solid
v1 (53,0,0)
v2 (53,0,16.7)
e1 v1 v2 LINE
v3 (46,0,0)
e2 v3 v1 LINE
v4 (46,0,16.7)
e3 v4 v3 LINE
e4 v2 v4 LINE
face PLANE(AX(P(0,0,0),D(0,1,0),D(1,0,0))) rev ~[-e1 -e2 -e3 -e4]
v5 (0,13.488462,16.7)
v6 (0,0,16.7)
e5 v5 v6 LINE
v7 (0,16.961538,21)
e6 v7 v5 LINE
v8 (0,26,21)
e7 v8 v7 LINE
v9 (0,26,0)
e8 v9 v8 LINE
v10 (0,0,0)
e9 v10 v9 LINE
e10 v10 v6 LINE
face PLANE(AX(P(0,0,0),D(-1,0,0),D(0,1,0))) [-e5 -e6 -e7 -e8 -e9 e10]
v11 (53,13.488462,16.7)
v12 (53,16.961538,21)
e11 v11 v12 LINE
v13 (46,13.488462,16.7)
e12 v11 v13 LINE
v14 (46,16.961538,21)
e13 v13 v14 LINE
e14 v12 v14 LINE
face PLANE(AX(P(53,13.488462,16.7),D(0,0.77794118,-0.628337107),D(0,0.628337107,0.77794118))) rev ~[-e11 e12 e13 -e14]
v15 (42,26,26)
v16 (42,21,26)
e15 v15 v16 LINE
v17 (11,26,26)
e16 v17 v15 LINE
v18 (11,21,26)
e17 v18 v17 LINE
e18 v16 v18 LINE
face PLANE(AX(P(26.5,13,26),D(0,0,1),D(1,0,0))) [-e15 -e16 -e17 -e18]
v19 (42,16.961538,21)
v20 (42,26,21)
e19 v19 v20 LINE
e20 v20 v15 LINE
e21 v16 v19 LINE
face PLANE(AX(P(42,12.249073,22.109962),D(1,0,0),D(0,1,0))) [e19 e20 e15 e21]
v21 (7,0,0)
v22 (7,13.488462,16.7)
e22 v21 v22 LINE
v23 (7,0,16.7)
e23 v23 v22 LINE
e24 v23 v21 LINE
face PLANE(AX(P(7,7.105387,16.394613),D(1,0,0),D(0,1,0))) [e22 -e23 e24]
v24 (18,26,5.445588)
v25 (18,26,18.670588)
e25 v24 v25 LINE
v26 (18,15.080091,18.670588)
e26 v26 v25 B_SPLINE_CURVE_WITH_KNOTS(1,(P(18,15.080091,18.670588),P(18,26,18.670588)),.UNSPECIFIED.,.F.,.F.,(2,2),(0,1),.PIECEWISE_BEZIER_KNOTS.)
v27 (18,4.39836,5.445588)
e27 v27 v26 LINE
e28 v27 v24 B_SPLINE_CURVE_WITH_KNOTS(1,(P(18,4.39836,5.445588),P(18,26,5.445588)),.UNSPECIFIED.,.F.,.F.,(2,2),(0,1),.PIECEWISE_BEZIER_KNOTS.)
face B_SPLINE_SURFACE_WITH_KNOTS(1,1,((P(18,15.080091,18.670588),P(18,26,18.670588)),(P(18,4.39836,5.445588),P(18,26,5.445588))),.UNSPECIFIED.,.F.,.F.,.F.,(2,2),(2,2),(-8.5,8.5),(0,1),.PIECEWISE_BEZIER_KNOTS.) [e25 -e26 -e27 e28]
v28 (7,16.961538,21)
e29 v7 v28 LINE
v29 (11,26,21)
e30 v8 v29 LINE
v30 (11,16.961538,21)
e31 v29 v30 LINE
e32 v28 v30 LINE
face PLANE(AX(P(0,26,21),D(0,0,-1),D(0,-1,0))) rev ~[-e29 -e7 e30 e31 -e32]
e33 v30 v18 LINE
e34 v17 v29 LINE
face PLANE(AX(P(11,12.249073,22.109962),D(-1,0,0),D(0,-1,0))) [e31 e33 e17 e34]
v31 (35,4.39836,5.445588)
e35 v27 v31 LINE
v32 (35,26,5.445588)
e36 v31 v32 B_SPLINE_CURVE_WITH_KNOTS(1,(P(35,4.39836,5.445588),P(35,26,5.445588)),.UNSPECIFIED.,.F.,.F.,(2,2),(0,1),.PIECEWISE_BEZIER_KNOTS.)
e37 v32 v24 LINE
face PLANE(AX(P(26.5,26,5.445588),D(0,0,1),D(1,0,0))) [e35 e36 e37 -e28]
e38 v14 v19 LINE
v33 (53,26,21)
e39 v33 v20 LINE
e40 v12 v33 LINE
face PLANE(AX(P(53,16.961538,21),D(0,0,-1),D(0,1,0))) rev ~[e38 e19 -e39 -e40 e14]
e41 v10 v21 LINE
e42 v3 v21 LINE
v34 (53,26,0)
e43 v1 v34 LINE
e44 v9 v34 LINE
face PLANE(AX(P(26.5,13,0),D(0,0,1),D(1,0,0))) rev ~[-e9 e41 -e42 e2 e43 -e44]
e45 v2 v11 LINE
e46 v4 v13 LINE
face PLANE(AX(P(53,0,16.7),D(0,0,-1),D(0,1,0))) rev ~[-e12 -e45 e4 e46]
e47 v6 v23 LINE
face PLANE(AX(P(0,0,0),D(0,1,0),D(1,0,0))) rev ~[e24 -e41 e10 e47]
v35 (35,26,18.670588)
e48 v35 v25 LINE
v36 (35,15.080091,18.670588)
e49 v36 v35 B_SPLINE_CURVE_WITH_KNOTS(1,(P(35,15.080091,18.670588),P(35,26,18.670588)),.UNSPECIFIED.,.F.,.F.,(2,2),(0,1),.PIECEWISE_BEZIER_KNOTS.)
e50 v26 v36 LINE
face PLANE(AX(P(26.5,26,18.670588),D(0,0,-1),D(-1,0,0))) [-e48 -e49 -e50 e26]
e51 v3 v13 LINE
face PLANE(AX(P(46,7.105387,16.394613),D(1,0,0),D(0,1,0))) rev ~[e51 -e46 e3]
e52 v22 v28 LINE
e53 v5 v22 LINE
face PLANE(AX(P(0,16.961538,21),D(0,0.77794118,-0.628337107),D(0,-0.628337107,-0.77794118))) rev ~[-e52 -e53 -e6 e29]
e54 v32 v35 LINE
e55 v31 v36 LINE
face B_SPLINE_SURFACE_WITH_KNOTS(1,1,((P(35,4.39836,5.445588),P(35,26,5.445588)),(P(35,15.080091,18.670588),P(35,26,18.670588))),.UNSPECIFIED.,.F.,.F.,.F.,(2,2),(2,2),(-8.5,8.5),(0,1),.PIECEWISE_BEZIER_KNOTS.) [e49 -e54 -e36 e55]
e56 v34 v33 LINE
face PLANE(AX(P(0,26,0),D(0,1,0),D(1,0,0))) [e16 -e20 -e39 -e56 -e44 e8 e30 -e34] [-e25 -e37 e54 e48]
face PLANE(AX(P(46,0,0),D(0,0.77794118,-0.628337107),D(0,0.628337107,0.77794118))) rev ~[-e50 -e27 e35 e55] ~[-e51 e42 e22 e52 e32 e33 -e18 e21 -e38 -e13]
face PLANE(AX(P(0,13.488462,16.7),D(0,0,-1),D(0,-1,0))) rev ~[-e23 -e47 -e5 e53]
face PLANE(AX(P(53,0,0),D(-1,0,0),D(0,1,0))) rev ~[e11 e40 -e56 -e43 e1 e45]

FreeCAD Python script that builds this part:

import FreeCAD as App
import Part
import Sketcher

doc = App.newDocument("Part")
params = doc.addObject("Spreadsheet::Sheet", "Params")
for row, (alias, value) in enumerate([
    ("sketch1_width", "53 mm"),
    ("sketch1_height", "26 mm"),
    ("pad1_length", "26 mm"),
    ("sketch2_width", "21 mm"),
    ("sketch2_height", "26 mm"),
    ("pocket1_length", "39 mm"),
    ("sketch3_width", "26 mm"),
    ("sketch3_height", "5 mm"),
    ("sketch3_height2", "9.3 mm"),
    ("pocket2_length", "11 mm"),
    ("sketch4_width", "26 mm"),
    ("sketch4_height", "5 mm"),
    ("sketch4_height2", "9.3 mm"),
    ("pocket3_length", "11 mm"),
    ("sketch5_width", "17 mm"),
    ("sketch6_width", "17 mm"),
], start=1):
    params.set(f"A{row}", alias)
    params.set(f"B{row}", "=" + value)
    params.setAlias(f"B{row}", alias)

body = doc.addObject("PartDesign::Body", "Body")

sketch1 = body.newObject("Sketcher::SketchObject", "Sketch")
sketch1.AttachmentSupport = (doc.getObject("XY_Plane"), [""])
sketch1.MapMode = "FlatFace"
sketch1.addGeometry([
    Part.LineSegment(App.Vector(0, 26, 0), App.Vector(0, 0, 0)),
    Part.LineSegment(App.Vector(0, 0, 0), App.Vector(53, 0, 0)),
    Part.LineSegment(App.Vector(53, 0, 0), App.Vector(53, 26, 0)),
    Part.LineSegment(App.Vector(53, 26, 0), App.Vector(0, 26, 0)),
], False)
sketch1.addConstraint([
    Sketcher.Constraint("Coincident", 0, 2, 1, 1),
    Sketcher.Constraint("Coincident", 1, 2, 2, 1),
    Sketcher.Constraint("Coincident", 2, 2, 3, 1),
    Sketcher.Constraint("Coincident", 3, 2, 0, 1),
    Sketcher.Constraint("Vertical", 0),
    Sketcher.Constraint("Horizontal", 1),
    Sketcher.Constraint("Vertical", 2),
    Sketcher.Constraint("Horizontal", 3),
    Sketcher.Constraint("Coincident", 0, 2, -1, 1),
    Sketcher.Constraint("DistanceX", 1, 1, 1, 2, 53.0),
    Sketcher.Constraint("DistanceY", 0, 2, 0, 1, 26.0),
])
sketch1.setExpression("Constraints[9]", "Params.sketch1_width")
sketch1.setExpression("Constraints[10]", "Params.sketch1_height")
pad1 = body.newObject("PartDesign::Pad", "Pad")
pad1.Profile = sketch1
pad1.setExpression("Length", "Params.pad1_length")

sketch2 = body.newObject("Sketcher::SketchObject", "Sketch001")
sketch2.AttachmentSupport = (doc.getObject("YZ_Plane"), [""])
sketch2.MapMode = "FlatFace"
sketch2.AttachmentOffset = App.Placement(App.Vector(0, 0, 46), App.Rotation())
sketch2.addGeometry([
    Part.LineSegment(App.Vector(21, 26, 0), App.Vector(0, 26, 0)),
    Part.LineSegment(App.Vector(0, 26, 0), App.Vector(0, 0, 0)),
    Part.LineSegment(App.Vector(0, 0, 0), App.Vector(21, 26, 0)),
], False)
sketch2.addConstraint([
    Sketcher.Constraint("Coincident", 0, 2, 1, 1),
    Sketcher.Constraint("Coincident", 1, 2, 2, 1),
    Sketcher.Constraint("Coincident", 2, 2, 0, 1),
    Sketcher.Constraint("Horizontal", 0),
    Sketcher.Constraint("Vertical", 1),
    Sketcher.Constraint("Coincident", 1, 2, -1, 1),
    Sketcher.Constraint("DistanceX", 0, 2, 0, 1, 21.0),
    Sketcher.Constraint("DistanceY", 1, 2, 1, 1, 26.0),
])
sketch2.setExpression("Constraints[6]", "Params.sketch2_width")
sketch2.setExpression("Constraints[7]", "Params.sketch2_height")
pocket1 = body.newObject("PartDesign::Pocket", "Pocket")
pocket1.Profile = sketch2
pocket1.setExpression("Length", "Params.pocket1_length")

sketch3 = body.newObject("Sketcher::SketchObject", "Sketch002")
sketch3.AttachmentSupport = (doc.getObject("YZ_Plane"), [""])
sketch3.MapMode = "FlatFace"
sketch3.AttachmentOffset = App.Placement(App.Vector(0, 0, 53), App.Rotation())
sketch3.addGeometry([
    Part.LineSegment(App.Vector(26, 26, 0), App.Vector(0, 26, 0)),
    Part.LineSegment(App.Vector(0, 26, 0), App.Vector(0, 17, 0)),
    Part.LineSegment(App.Vector(0, 17, 0), App.Vector(13, 17, 0)),
    Part.LineSegment(App.Vector(13, 17, 0), App.Vector(17, 21, 0)),
    Part.LineSegment(App.Vector(17, 21, 0), App.Vector(26, 21, 0)),
    Part.LineSegment(App.Vector(26, 21, 0), App.Vector(26, 26, 0)),
], False)
sketch3.addConstraint([
    Sketcher.Constraint("Coincident", 0, 2, 1, 1),
    Sketcher.Constraint("Coincident", 1, 2, 2, 1),
    Sketcher.Constraint("Coincident", 2, 2, 3, 1),
    Sketcher.Constraint("Coincident", 3, 2, 4, 1),
    Sketcher.Constraint("Coincident", 4, 2, 5, 1),
    Sketcher.Constraint("Coincident", 5, 2, 0, 1),
    Sketcher.Constraint("Horizontal", 0),
    Sketcher.Constraint("Vertical", 1),
    Sketcher.Constraint("Horizontal", 2),
    Sketcher.Constraint("Horizontal", 4),
    Sketcher.Constraint("Vertical", 5),
    Sketcher.Constraint("PointOnObject", 0, 2, -2),
    Sketcher.Constraint("DistanceX", 0, 2, 0, 1, 26.0),
    Sketcher.Constraint("DistanceY", 5, 1, 5, 2, 5.0),
    Sketcher.Constraint("DistanceY", 1, 2, 1, 1, 9.3),
    Sketcher.Constraint("DistanceY", -1, 1, 0, 2, 26.0),
    Sketcher.Constraint("DistanceX", 2, 1, 2, 2, 13.488462),
    Sketcher.Constraint("DistanceX", 4, 1, 4, 2, 9.038462),
])
sketch3.setExpression("Constraints[12]", "Params.sketch3_width")
sketch3.setExpression("Constraints[13]", "Params.sketch3_height")
sketch3.setExpression("Constraints[14]", "Params.sketch3_height2")
pocket2 = body.newObject("PartDesign::Pocket", "Pocket001")
pocket2.Profile = sketch3
pocket2.setExpression("Length", "Params.pocket2_length")

sketch4 = body.newObject("Sketcher::SketchObject", "Sketch003")
sketch4.AttachmentSupport = (doc.getObject("YZ_Plane"), [""])
sketch4.MapMode = "FlatFace"
sketch4.addGeometry([
    Part.LineSegment(App.Vector(26, 21, 0), App.Vector(17, 21, 0)),
    Part.LineSegment(App.Vector(17, 21, 0), App.Vector(13, 17, 0)),
    Part.LineSegment(App.Vector(13, 17, 0), App.Vector(0, 17, 0)),
    Part.LineSegment(App.Vector(0, 17, 0), App.Vector(0, 26, 0)),
    Part.LineSegment(App.Vector(0, 26, 0), App.Vector(26, 26, 0)),
    Part.LineSegment(App.Vector(26, 26, 0), App.Vector(26, 21, 0)),
], False)
sketch4.addConstraint([
    Sketcher.Constraint("Coincident", 0, 2, 1, 1),
    Sketcher.Constraint("Coincident", 1, 2, 2, 1),
    Sketcher.Constraint("Coincident", 2, 2, 3, 1),
    Sketcher.Constraint("Coincident", 3, 2, 4, 1),
    Sketcher.Constraint("Coincident", 4, 2, 5, 1),
    Sketcher.Constraint("Coincident", 5, 2, 0, 1),
    Sketcher.Constraint("Horizontal", 0),
    Sketcher.Constraint("Horizontal", 2),
    Sketcher.Constraint("Vertical", 3),
    Sketcher.Constraint("Horizontal", 4),
    Sketcher.Constraint("Vertical", 5),
    Sketcher.Constraint("PointOnObject", 2, 2, -2),
    Sketcher.Constraint("DistanceX", 4, 1, 4, 2, 26.0),
    Sketcher.Constraint("DistanceY", 5, 2, 5, 1, 5.0),
    Sketcher.Constraint("DistanceY", 3, 1, 3, 2, 9.3),
    Sketcher.Constraint("DistanceY", -1, 1, 0, 2, 21.0),
    Sketcher.Constraint("DistanceX", 0, 2, 0, 1, 9.038462),
    Sketcher.Constraint("DistanceX", 2, 2, 2, 1, 13.488462),
])
sketch4.setExpression("Constraints[12]", "Params.sketch4_width")
sketch4.setExpression("Constraints[13]", "Params.sketch4_height")
sketch4.setExpression("Constraints[14]", "Params.sketch4_height2")
pocket3 = body.newObject("PartDesign::Pocket", "Pocket002")
pocket3.Profile = sketch4
pocket3.setExpression("Length", "Params.pocket3_length")
pocket3.Reversed = True

sketch5 = body.newObject("Sketcher::SketchObject", "Sketch004")
sketch5.Placement = App.Placement(App.Vector(0, 0, 0), App.Rotation(App.Vector(1, 0, 0), App.Vector(0, 0.628337107, 0.77794118), App.Vector(0, -0.77794118, 0.628337107), "ZXY"))
sketch5.addGeometry([
    Part.LineSegment(App.Vector(18, 24, 0), App.Vector(18, 7, 0)),
    Part.LineSegment(App.Vector(18, 7, 0), App.Vector(35, 7, 0)),
    Part.LineSegment(App.Vector(35, 7, 0), App.Vector(35, 24, 0)),
    Part.LineSegment(App.Vector(35, 24, 0), App.Vector(18, 24, 0)),
], False)
sketch5.addConstraint([
    Sketcher.Constraint("Coincident", 0, 2, 1, 1),
    Sketcher.Constraint("Coincident", 1, 2, 2, 1),
    Sketcher.Constraint("Coincident", 2, 2, 3, 1),
    Sketcher.Constraint("Coincident", 3, 2, 0, 1),
    Sketcher.Constraint("Vertical", 0),
    Sketcher.Constraint("Horizontal", 1),
    Sketcher.Constraint("Vertical", 2),
    Sketcher.Constraint("Horizontal", 3),
    Sketcher.Constraint("Equal", 3, 0),
    Sketcher.Constraint("DistanceX", 1, 1, 1, 2, 17.0),
    Sketcher.Constraint("DistanceX", -1, 1, 0, 2, 18.0),
    Sketcher.Constraint("DistanceY", -1, 1, 0, 2, 7.0),
])
sketch5.setExpression("Constraints[9]", "Params.sketch5_width")

sketch6 = body.newObject("Sketcher::SketchObject", "Sketch005")
sketch6.AttachmentSupport = (doc.getObject("XZ_Plane"), [""])
sketch6.MapMode = "FlatFace"
sketch6.AttachmentOffset = App.Placement(App.Vector(0, 0, -26), App.Rotation())
sketch6.addGeometry([
    Part.LineSegment(App.Vector(35, 19, 0), App.Vector(35, 5, 0)),
    Part.LineSegment(App.Vector(35, 5, 0), App.Vector(18, 5, 0)),
    Part.LineSegment(App.Vector(18, 5, 0), App.Vector(18, 19, 0)),
    Part.LineSegment(App.Vector(18, 19, 0), App.Vector(35, 19, 0)),
], False)
sketch6.addConstraint([
    Sketcher.Constraint("Coincident", 0, 2, 1, 1),
    Sketcher.Constraint("Coincident", 1, 2, 2, 1),
    Sketcher.Constraint("Coincident", 2, 2, 3, 1),
    Sketcher.Constraint("Coincident", 3, 2, 0, 1),
    Sketcher.Constraint("Vertical", 0),
    Sketcher.Constraint("Horizontal", 1),
    Sketcher.Constraint("Vertical", 2),
    Sketcher.Constraint("Horizontal", 3),
    Sketcher.Constraint("DistanceX", 1, 2, 1, 1, 17.0),
    Sketcher.Constraint("DistanceX", -1, 1, 0, 2, 35.0),
    Sketcher.Constraint("DistanceY", 0, 2, 0, 1, 13.225),
    Sketcher.Constraint("DistanceY", -1, 1, 0, 2, 5.445588),
])
sketch6.setExpression("Constraints[8]", "Params.sketch6_width")

subtractiveloft = body.newObject("PartDesign::SubtractiveLoft", "SubtractiveLoft")
subtractiveloft.Profile = sketch5
subtractiveloft.Sections = [sketch6]

doc.recompute()
